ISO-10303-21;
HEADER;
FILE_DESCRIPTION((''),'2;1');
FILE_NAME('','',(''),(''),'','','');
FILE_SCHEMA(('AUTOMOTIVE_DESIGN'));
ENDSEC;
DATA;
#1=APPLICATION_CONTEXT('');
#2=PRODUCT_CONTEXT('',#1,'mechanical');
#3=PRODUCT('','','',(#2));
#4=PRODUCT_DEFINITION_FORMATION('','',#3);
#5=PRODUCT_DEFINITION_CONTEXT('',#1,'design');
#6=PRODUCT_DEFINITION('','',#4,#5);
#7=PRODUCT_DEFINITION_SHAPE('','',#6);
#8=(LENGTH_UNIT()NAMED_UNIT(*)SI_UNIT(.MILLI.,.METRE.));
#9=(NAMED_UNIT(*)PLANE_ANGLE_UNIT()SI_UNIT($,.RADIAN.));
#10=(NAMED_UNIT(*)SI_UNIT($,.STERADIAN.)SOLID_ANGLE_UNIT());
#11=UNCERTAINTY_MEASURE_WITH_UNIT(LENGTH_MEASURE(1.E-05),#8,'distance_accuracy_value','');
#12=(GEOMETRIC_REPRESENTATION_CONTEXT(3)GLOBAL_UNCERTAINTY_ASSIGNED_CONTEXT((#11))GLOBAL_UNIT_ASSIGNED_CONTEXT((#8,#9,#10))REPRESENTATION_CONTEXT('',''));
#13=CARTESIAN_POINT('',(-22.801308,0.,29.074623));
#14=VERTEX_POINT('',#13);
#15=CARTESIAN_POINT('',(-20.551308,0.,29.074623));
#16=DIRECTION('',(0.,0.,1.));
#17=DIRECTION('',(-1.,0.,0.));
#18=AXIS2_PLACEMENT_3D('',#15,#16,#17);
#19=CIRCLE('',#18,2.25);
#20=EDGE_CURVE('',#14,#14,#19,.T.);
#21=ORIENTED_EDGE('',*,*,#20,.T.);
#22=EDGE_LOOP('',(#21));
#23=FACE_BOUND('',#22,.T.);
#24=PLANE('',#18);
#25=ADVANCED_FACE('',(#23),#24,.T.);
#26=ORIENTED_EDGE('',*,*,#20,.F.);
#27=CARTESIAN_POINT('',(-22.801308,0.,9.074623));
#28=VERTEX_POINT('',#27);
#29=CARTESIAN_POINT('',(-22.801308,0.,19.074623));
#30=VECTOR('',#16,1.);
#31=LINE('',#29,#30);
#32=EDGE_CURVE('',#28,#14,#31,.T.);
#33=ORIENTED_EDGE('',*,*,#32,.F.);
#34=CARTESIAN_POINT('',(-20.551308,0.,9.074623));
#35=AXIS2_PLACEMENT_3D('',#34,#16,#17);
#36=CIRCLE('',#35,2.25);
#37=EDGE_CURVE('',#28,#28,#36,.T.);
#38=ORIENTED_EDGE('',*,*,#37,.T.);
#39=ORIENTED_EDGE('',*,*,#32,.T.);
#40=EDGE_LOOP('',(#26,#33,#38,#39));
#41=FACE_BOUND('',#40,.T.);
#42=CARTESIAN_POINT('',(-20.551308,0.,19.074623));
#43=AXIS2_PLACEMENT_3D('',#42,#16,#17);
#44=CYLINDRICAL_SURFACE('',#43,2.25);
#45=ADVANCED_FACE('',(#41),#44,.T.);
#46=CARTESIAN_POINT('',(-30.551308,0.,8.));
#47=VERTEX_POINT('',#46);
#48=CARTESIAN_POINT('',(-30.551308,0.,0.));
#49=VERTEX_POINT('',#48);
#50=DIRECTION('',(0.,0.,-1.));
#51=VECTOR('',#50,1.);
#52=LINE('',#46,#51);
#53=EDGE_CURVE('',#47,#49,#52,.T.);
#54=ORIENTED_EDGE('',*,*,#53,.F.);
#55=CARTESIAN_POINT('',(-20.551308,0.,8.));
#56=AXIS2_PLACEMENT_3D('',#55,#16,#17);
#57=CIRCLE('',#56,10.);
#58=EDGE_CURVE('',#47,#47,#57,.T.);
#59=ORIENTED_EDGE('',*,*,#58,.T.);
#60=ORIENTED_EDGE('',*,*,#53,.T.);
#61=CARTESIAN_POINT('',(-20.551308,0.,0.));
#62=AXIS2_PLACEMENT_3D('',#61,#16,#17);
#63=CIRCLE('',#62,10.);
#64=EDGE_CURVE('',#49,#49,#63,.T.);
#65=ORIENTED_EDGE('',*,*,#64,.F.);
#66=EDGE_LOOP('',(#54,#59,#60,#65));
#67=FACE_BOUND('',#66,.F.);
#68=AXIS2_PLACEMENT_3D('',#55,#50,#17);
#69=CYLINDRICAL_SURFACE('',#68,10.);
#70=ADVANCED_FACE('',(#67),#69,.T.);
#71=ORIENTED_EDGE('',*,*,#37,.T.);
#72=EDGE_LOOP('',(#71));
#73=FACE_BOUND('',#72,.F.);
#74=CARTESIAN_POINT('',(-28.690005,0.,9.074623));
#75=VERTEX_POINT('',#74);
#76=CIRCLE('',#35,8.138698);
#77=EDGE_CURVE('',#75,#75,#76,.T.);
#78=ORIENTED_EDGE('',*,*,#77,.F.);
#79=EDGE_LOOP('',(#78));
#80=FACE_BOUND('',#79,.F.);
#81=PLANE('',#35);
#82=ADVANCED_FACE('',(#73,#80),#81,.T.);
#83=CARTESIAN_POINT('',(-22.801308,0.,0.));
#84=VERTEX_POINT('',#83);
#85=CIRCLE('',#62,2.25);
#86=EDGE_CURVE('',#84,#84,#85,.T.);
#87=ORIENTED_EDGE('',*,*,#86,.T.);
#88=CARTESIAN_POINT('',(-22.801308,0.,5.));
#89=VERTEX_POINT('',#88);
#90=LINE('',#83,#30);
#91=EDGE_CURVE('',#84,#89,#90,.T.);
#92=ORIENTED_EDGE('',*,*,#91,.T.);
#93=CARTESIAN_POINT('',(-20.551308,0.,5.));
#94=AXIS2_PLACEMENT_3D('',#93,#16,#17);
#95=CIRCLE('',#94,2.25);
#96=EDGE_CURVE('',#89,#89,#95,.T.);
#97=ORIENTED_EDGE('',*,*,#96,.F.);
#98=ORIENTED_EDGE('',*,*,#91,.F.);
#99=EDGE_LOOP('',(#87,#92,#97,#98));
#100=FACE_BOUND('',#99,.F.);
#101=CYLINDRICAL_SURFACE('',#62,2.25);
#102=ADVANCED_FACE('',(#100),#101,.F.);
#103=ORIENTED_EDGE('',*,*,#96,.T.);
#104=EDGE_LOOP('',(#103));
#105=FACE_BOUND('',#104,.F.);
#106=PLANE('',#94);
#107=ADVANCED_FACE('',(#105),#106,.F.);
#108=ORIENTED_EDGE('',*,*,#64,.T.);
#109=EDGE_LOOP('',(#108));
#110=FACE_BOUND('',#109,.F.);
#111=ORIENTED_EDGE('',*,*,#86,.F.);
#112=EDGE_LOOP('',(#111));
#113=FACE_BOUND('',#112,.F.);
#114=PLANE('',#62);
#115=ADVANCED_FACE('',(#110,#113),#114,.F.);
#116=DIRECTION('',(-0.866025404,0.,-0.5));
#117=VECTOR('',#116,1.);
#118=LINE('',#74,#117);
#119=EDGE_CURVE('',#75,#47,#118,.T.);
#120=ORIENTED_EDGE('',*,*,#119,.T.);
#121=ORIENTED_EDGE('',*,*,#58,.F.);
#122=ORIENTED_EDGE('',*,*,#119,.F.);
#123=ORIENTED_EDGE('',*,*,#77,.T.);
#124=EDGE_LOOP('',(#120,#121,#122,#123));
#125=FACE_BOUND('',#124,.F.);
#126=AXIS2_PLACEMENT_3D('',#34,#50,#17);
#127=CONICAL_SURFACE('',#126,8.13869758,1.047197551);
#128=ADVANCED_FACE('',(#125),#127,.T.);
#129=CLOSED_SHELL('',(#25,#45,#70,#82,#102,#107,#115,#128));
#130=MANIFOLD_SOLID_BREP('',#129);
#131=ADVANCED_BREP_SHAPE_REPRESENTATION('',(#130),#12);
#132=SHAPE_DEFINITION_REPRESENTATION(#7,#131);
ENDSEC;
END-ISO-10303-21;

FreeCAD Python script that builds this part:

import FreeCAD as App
import Part
import Sketcher
Q = App.Units.Quantity

doc = App.newDocument("Part")
body = doc.addObject("PartDesign::Body", "Body")

# Sketch on XZ plane
sketch1 = body.newObject("Sketcher::SketchObject", "Sketch")
sketch1.AttachmentSupport = (doc.getObject("XZ_Plane"), [""])
sketch1.MapMode = "FlatFace"
sketch1.addGeometry(Part.LineSegment(App.Vector(-22.8, 29.1, 0), App.Vector(-22.8, 9.1, 0)), False)
sketch1.addGeometry(Part.LineSegment(App.Vector(-22.8, 9.1, 0), App.Vector(-28.7, 9.1, 0)), False)
sketch1.addGeometry(Part.LineSegment(App.Vector(-28.7, 9.1, 0), App.Vector(-30.6, 8, 0)), False)
sketch1.addGeometry(Part.LineSegment(App.Vector(-30.6, 8, 0), App.Vector(-30.6, 0, 0)), False)
sketch1.addGeometry(Part.LineSegment(App.Vector(-30.6, 0, 0), App.Vector(-22.8, 0, 0)), False)
sketch1.addGeometry(Part.LineSegment(App.Vector(-22.8, 0, 0), App.Vector(-22.8, 5, 0)), False)
sketch1.addGeometry(Part.LineSegment(App.Vector(-22.8, 5, 0), App.Vector(-20.6, 5, 0)), False)
sketch1.addGeometry(Part.LineSegment(App.Vector(-20.6, 5, 0), App.Vector(-20.6, 29.1, 0)), False)
sketch1.addGeometry(Part.LineSegment(App.Vector(-20.6, 29.1, 0), App.Vector(-22.8, 29.1, 0)), False)
sketch1.addGeometry(Part.LineSegment(App.Vector(-20.6, 0, 0), App.Vector(-20.6, 29.1, 0)), True)  # axis
sketch1.addConstraint(Sketcher.Constraint("Coincident", 0, 2, 1, 1))
sketch1.addConstraint(Sketcher.Constraint("Coincident", 1, 2, 2, 1))
sketch1.addConstraint(Sketcher.Constraint("Coincident", 2, 2, 3, 1))
sketch1.addConstraint(Sketcher.Constraint("Coincident", 3, 2, 4, 1))
sketch1.addConstraint(Sketcher.Constraint("Coincident", 4, 2, 5, 1))
sketch1.addConstraint(Sketcher.Constraint("Coincident", 5, 2, 6, 1))
sketch1.addConstraint(Sketcher.Constraint("Coincident", 6, 2, 7, 1))
sketch1.addConstraint(Sketcher.Constraint("Coincident", 7, 2, 8, 1))
sketch1.addConstraint(Sketcher.Constraint("Coincident", 8, 2, 0, 1))
sketch1.addConstraint(Sketcher.Constraint("Vertical", 0))
sketch1.addConstraint(Sketcher.Constraint("Horizontal", 1))
sketch1.addConstraint(Sketcher.Constraint("Vertical", 3))
sketch1.addConstraint(Sketcher.Constraint("Horizontal", 4))
sketch1.addConstraint(Sketcher.Constraint("Vertical", 5))
sketch1.addConstraint(Sketcher.Constraint("Horizontal", 6))
sketch1.addConstraint(Sketcher.Constraint("Vertical", 7))
sketch1.addConstraint(Sketcher.Constraint("Horizontal", 8))
sketch1.addConstraint(Sketcher.Constraint("Vertical", 9))
sketch1.addConstraint(Sketcher.Constraint("Coincident", 9, 2, 7, 2))
sketch1.addConstraint(Sketcher.Constraint("PointOnObject", 3, 2, -1))
sketch1.addConstraint(Sketcher.Constraint("PointOnObject", 9, 1, -1))
sketch1.addConstraint(Sketcher.Constraint("Vertical", 0, 2, 4, 2))
sketch1.addConstraint(Sketcher.Constraint("DistanceY", 0, 2, 0, 1, Q("20 mm")))
sketch1.addConstraint(Sketcher.Constraint("DistanceY", 3, 2, 3, 1, Q("8 mm")))
sketch1.addConstraint(Sketcher.Constraint("DistanceY", 5, 1, 5, 2, Q("5 mm")))
sketch1.addConstraint(Sketcher.Constraint("Angle", 2, Q("-150 deg")))
sketch1.addConstraint(Sketcher.Constraint("DistanceX", 2, 2, 6, 2, Q("10 mm")))
sketch1.addConstraint(Sketcher.Constraint("DistanceX", 4, 1, 4, 2, Q("7.75 mm")))
sketch1.addConstraint(Sketcher.Constraint("DistanceX", 1, 2, 1, 1, Q("5.888698 mm")))
sketch1.addConstraint(Sketcher.Constraint("DistanceX", 0, 2, -1, 1, Q("22.801308 mm")))
revolution = body.newObject("PartDesign::Revolution", "Revolution")
revolution.Profile = sketch1
revolution.ReferenceAxis = (sketch1, ["Axis0"])
revolution.Angle = 360

doc.recompute()
